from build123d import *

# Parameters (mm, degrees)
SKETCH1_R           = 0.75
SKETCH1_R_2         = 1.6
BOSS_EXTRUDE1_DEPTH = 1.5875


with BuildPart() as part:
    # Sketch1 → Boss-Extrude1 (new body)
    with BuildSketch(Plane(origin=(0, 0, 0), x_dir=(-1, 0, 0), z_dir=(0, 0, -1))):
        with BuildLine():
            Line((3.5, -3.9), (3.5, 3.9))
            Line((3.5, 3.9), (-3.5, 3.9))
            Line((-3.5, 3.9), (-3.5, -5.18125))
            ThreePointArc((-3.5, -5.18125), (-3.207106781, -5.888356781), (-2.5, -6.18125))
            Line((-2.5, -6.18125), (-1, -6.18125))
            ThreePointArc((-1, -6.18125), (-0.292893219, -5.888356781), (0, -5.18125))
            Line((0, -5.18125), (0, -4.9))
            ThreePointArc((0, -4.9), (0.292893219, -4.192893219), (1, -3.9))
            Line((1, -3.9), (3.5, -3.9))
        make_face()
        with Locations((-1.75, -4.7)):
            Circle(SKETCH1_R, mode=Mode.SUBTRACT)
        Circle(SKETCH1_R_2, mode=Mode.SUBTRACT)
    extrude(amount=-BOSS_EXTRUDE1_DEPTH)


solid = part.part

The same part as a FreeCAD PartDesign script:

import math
import FreeCAD as App
import Part
import Sketcher

V = App.Vector
Q = App.Units.Quantity

doc = App.newDocument("Part")
body = doc.addObject("PartDesign::Body", "Body")

# Sketch on XY plane
sketch1 = body.newObject("Sketcher::SketchObject", "Sketch")
sketch1.AttachmentSupport = (doc.getObject("XY_Plane"), [""])
sketch1.MapMode = "FlatFace"
sketch1.addGeometry([
    Part.LineSegment(V(-3.5, -3.9, 0), V(-3.5, 3.9, 0)),  # 0
    Part.LineSegment(V(-3.5, 3.9, 0), V(3.5, 3.9, 0)),  # 1
    Part.LineSegment(V(3.5, 3.9, 0), V(3.5, -5.18, 0)),  # 2
    Part.ArcOfCircle(Part.Circle(V(2.5, -5.18, 0), V(0, 0, 1), 1), math.radians(-90), math.radians(0)),  # 3
    Part.LineSegment(V(2.5, -6.18, 0), V(1, -6.18, 0)),  # 4
    Part.ArcOfCircle(Part.Circle(V(1, -5.18, 0), V(0, 0, 1), 1), math.radians(-180), math.radians(-90)),  # 5
    Part.LineSegment(V(0, -5.18, 0), V(0, -4.9, 0)),  # 6
    Part.ArcOfCircle(Part.Circle(V(-1, -4.9, 0), V(0, 0, 1), 1), math.radians(0), math.radians(90)),  # 7
    Part.LineSegment(V(-1, -3.9, 0), V(-3.5, -3.9, 0)),  # 8
    Part.Circle(V(1.75, -4.7, 0), V(0, 0, 1), 0.75),  # 9
    Part.Circle(V(0, 0, 0), V(0, 0, 1), 1.6),  # 10
], False)
sketch1.addConstraint([
    Sketcher.Constraint("Coincident", 0, 2, 1, 1),
    Sketcher.Constraint("Coincident", 1, 2, 2, 1),
    Sketcher.Constraint("Tangent", 2, 2, 3, 2),
    Sketcher.Constraint("Tangent", 3, 1, 4, 1),
    Sketcher.Constraint("Tangent", 4, 2, 5, 2),
    Sketcher.Constraint("Tangent", 5, 1, 6, 1),
    Sketcher.Constraint("Tangent", 6, 2, 7, 1),
    Sketcher.Constraint("Tangent", 7, 2, 8, 1),
    Sketcher.Constraint("Coincident", 8, 2, 0, 1),
    Sketcher.Constraint("Vertical", 0),
    Sketcher.Constraint("Horizontal", 1),
    Sketcher.Constraint("Vertical", 2),
    Sketcher.Constraint("Horizontal", 4),
    Sketcher.Constraint("Vertical", 6),
    Sketcher.Constraint("Horizontal", 8),
    Sketcher.Constraint("Coincident", 10, 3, -1, 1),
    Sketcher.Constraint("Equal", 3, 5),
    Sketcher.Constraint("Equal", 5, 7),
    Sketcher.Constraint("Symmetric", 1, 2, 8, 2, -1, 1),
    Sketcher.Constraint("PointOnObject", 5, 1, -2),
    Sketcher.Constraint("Radius", 3, Q("1 mm")),
    Sketcher.Constraint("Diameter", 9, Q("1.5 mm")),
    Sketcher.Constraint("Diameter", 10, Q("3.2 mm")),
    Sketcher.Constraint("DistanceX", 1, 1, 1, 2, Q("7 mm")),
    Sketcher.Constraint("DistanceY", 0, 1, 0, 2, Q("7.8 mm")),
    Sketcher.Constraint("DistanceY", 9, 3, -1, 1, Q("4.7 mm")),
    Sketcher.Constraint("DistanceX", -1, 1, 9, 3, Q("1.75 mm")),
    Sketcher.Constraint("DistanceY", 2, 2, 2, 1, Q("9.08125 mm")),
])
pad1 = body.newObject("PartDesign::Pad", "Pad")
pad1.Profile = sketch1
pad1.Length = 1.5875

doc.recompute()
